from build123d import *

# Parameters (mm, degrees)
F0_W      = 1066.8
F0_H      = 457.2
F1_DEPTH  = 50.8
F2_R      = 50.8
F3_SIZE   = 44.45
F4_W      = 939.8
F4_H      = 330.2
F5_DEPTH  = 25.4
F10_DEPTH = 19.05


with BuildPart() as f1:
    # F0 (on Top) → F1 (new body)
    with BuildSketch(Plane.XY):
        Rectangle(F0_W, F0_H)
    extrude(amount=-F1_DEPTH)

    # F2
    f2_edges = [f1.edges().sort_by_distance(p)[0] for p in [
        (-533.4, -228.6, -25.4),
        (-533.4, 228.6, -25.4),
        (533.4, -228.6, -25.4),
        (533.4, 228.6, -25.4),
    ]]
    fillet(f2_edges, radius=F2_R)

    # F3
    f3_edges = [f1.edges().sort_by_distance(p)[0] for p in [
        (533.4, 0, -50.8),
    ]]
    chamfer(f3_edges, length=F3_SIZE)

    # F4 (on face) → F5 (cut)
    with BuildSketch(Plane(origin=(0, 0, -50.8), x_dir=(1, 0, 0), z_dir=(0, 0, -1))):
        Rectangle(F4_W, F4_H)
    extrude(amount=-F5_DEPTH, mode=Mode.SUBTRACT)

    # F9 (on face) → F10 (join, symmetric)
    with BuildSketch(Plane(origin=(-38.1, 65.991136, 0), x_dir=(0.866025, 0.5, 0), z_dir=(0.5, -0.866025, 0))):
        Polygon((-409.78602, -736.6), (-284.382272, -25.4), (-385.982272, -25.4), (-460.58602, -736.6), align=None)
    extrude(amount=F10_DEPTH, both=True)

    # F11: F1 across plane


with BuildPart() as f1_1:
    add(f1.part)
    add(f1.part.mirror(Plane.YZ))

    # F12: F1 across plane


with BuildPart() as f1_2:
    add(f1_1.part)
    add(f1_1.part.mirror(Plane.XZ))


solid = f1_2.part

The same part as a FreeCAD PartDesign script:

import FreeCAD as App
import Part
import Sketcher
from FreeCAD import Vector
Q = App.Units.Quantity


def edges_at(feature, points):
    """Names of the edges that pass closest to the given points."""
    edges = feature.Shape.Edges
    near = lambda p: min(range(len(edges)), key=lambda i: edges[i].distToShape(Part.Vertex(*p))[0])
    return sorted({f"Edge{near(p) + 1}" for p in points})

doc = App.newDocument("Part")
body = doc.addObject("PartDesign::Body", "Body")

sketch1 = body.newObject("Sketcher::SketchObject", "Sketch")
sketch1.AttachmentSupport = (doc.getObject("XY_Plane"), [""])
sketch1.MapMode = "FlatFace"
sketch1.addGeometry([
    Part.LineSegment(Vector(-533, 229, 0), Vector(-533, -229, 0)),
    Part.LineSegment(Vector(-533, -229, 0), Vector(533, -229, 0)),
    Part.LineSegment(Vector(533, -229, 0), Vector(533, 229, 0)),
    Part.LineSegment(Vector(533, 229, 0), Vector(-533, 229, 0)),
], False)
sketch1.addConstraint([
    Sketcher.Constraint("Coincident", 0, 2, 1, 1),
    Sketcher.Constraint("Coincident", 1, 2, 2, 1),
    Sketcher.Constraint("Coincident", 2, 2, 3, 1),
    Sketcher.Constraint("Coincident", 3, 2, 0, 1),
    Sketcher.Constraint("Vertical", 0),
    Sketcher.Constraint("Horizontal", 1),
    Sketcher.Constraint("Vertical", 2),
    Sketcher.Constraint("Horizontal", 3),
    Sketcher.Constraint("Symmetric", 0, 2, 2, 2, -1, 1),
    Sketcher.Constraint("DistanceX", 1, 1, 1, 2, Q("42 in")),
    Sketcher.Constraint("DistanceY", 0, 2, 0, 1, Q("18 in")),
])
pad1 = body.newObject("PartDesign::Pad", "Pad")
pad1.Profile = sketch1
pad1.Length = Q("2 in")
pad1.Reversed = True
doc.recompute()

fillet = body.newObject("PartDesign::Fillet", "Fillet")
fillet.Base = (pad1, edges_at(pad1, [
    (-533.4, -228.6, -25.4),
    (-533.4, 228.6, -25.4),
    (533.4, -228.6, -25.4),
    (533.4, 228.6, -25.4),
]))
fillet.Radius = Q("2 in")
doc.recompute()

chamfer = body.newObject("PartDesign::Chamfer", "Chamfer")
chamfer.Base = (fillet, edges_at(fillet, [(533.4, 0, -50.8)]))
chamfer.Size = Q("1.75 in")

sketch2 = body.newObject("Sketcher::SketchObject", "Sketch001")
sketch2.AttachmentSupport = (doc.getObject("XY_Plane"), [""])
sketch2.MapMode = "FlatFace"
sketch2.AttachmentOffset = App.Placement(Vector(0, 0, -2 * 25.4), App.Rotation())
sketch2.addGeometry([
    Part.LineSegment(Vector(-470, -165, 0), Vector(-470, 165, 0)),
    Part.LineSegment(Vector(-470, 165, 0), Vector(470, 165, 0)),
    Part.LineSegment(Vector(470, 165, 0), Vector(470, -165, 0)),
    Part.LineSegment(Vector(470, -165, 0), Vector(-470, -165, 0)),
], False)
sketch2.addConstraint([
    Sketcher.Constraint("Coincident", 0, 2, 1, 1),
    Sketcher.Constraint("Coincident", 1, 2, 2, 1),
    Sketcher.Constraint("Coincident", 2, 2, 3, 1),
    Sketcher.Constraint("Coincident", 3, 2, 0, 1),
    Sketcher.Constraint("Vertical", 0),
    Sketcher.Constraint("Horizontal", 1),
    Sketcher.Constraint("Vertical", 2),
    Sketcher.Constraint("Horizontal", 3),
    Sketcher.Constraint("Symmetric", 0, 2, 2, 2, -1, 1),
    Sketcher.Constraint("DistanceX", 1, 1, 1, 2, Q("37 in")),
    Sketcher.Constraint("DistanceY", 0, 1, 0, 2, Q("13 in")),
])
pocket1 = body.newObject("PartDesign::Pocket", "Pocket")
pocket1.Profile = sketch2
pocket1.Length = Q("1 in")
pocket1.Reversed = True

sketch3 = body.newObject("Sketcher::SketchObject", "Sketch002")
sketch3.Placement = App.Placement(Vector(-38.1, 65.991136, 0), App.Rotation(Vector(0.866025303, 0.500000175, 0), Vector(0, 0, 1), Vector(0.500000175, -0.866025303, 0), "ZXY"))
sketch3.addGeometry([
    Part.LineSegment(Vector(-410, -737, 0), Vector(-284, -25, 0)),
    Part.LineSegment(Vector(-284, -25, 0), Vector(-386, -25, 0)),
    Part.LineSegment(Vector(-386, -25, 0), Vector(-461, -737, 0)),
    Part.LineSegment(Vector(-461, -737, 0), Vector(-410, -737, 0)),
], False)
sketch3.addConstraint([
    Sketcher.Constraint("Coincident", 0, 2, 1, 1),
    Sketcher.Constraint("Coincident", 1, 2, 2, 1),
    Sketcher.Constraint("Coincident", 2, 2, 3, 1),
    Sketcher.Constraint("Coincident", 3, 2, 0, 1),
    Sketcher.Constraint("Horizontal", 1),
    Sketcher.Constraint("Horizontal", 3),
    Sketcher.Constraint("DistanceX", 1, 2, 1, 1, Q("4 in")),
    Sketcher.Constraint("DistanceX", 3, 1, 3, 2, Q("2 in")),
    Sketcher.Constraint("DistanceY", 0, 2, -1, 1, Q("1 in")),
    Sketcher.Constraint("DistanceY", 2, 2, -1, 1, Q("29 in")),
    Sketcher.Constraint("Angle", 0, Q("80 deg")),
    Sketcher.Constraint("DistanceX", 2, 2, -1, 1, Q("460.58602 mm")),
])
pad2 = body.newObject("PartDesign::Pad", "Pad001")
pad2.Profile = sketch3
pad2.Length = Q("1.5 in")
pad2.Midplane = True
body2 = doc.addObject("PartDesign::Body", "Body001")
doc.recompute()

body2.BaseFeature = body
doc.recompute()

mirroring = doc.addObject("Part::Mirroring", "Mirroring")
mirroring.Source = body
mirroring.Base = Vector(0, 0, 0)
mirroring.Normal = Vector(1, 0, 0)
body3 = doc.addObject("PartDesign::Body", "Body002")
body3.BaseFeature = mirroring
boolean = body2.newObject("PartDesign::Boolean", "Boolean")
boolean.Type = "Fuse"
boolean.addObjects([body3])
doc.recompute()
body4 = doc.addObject("PartDesign::Body", "Body003")
doc.recompute()

body4.BaseFeature = body2
doc.recompute()

mirroring2 = doc.addObject("Part::Mirroring", "Mirroring001")
mirroring2.Source = body2
mirroring2.Base = Vector(0, 0, 0)
mirroring2.Normal = Vector(0, -1, 0)
body5 = doc.addObject("PartDesign::Body", "Body004")
body5.BaseFeature = mirroring2
boolean2 = body4.newObject("PartDesign::Boolean", "Boolean001")
boolean2.Type = "Fuse"
boolean2.addObjects([body5])
doc.recompute()
mirroring.Visibility = False
mirroring2.Visibility = False

doc.recompute()
